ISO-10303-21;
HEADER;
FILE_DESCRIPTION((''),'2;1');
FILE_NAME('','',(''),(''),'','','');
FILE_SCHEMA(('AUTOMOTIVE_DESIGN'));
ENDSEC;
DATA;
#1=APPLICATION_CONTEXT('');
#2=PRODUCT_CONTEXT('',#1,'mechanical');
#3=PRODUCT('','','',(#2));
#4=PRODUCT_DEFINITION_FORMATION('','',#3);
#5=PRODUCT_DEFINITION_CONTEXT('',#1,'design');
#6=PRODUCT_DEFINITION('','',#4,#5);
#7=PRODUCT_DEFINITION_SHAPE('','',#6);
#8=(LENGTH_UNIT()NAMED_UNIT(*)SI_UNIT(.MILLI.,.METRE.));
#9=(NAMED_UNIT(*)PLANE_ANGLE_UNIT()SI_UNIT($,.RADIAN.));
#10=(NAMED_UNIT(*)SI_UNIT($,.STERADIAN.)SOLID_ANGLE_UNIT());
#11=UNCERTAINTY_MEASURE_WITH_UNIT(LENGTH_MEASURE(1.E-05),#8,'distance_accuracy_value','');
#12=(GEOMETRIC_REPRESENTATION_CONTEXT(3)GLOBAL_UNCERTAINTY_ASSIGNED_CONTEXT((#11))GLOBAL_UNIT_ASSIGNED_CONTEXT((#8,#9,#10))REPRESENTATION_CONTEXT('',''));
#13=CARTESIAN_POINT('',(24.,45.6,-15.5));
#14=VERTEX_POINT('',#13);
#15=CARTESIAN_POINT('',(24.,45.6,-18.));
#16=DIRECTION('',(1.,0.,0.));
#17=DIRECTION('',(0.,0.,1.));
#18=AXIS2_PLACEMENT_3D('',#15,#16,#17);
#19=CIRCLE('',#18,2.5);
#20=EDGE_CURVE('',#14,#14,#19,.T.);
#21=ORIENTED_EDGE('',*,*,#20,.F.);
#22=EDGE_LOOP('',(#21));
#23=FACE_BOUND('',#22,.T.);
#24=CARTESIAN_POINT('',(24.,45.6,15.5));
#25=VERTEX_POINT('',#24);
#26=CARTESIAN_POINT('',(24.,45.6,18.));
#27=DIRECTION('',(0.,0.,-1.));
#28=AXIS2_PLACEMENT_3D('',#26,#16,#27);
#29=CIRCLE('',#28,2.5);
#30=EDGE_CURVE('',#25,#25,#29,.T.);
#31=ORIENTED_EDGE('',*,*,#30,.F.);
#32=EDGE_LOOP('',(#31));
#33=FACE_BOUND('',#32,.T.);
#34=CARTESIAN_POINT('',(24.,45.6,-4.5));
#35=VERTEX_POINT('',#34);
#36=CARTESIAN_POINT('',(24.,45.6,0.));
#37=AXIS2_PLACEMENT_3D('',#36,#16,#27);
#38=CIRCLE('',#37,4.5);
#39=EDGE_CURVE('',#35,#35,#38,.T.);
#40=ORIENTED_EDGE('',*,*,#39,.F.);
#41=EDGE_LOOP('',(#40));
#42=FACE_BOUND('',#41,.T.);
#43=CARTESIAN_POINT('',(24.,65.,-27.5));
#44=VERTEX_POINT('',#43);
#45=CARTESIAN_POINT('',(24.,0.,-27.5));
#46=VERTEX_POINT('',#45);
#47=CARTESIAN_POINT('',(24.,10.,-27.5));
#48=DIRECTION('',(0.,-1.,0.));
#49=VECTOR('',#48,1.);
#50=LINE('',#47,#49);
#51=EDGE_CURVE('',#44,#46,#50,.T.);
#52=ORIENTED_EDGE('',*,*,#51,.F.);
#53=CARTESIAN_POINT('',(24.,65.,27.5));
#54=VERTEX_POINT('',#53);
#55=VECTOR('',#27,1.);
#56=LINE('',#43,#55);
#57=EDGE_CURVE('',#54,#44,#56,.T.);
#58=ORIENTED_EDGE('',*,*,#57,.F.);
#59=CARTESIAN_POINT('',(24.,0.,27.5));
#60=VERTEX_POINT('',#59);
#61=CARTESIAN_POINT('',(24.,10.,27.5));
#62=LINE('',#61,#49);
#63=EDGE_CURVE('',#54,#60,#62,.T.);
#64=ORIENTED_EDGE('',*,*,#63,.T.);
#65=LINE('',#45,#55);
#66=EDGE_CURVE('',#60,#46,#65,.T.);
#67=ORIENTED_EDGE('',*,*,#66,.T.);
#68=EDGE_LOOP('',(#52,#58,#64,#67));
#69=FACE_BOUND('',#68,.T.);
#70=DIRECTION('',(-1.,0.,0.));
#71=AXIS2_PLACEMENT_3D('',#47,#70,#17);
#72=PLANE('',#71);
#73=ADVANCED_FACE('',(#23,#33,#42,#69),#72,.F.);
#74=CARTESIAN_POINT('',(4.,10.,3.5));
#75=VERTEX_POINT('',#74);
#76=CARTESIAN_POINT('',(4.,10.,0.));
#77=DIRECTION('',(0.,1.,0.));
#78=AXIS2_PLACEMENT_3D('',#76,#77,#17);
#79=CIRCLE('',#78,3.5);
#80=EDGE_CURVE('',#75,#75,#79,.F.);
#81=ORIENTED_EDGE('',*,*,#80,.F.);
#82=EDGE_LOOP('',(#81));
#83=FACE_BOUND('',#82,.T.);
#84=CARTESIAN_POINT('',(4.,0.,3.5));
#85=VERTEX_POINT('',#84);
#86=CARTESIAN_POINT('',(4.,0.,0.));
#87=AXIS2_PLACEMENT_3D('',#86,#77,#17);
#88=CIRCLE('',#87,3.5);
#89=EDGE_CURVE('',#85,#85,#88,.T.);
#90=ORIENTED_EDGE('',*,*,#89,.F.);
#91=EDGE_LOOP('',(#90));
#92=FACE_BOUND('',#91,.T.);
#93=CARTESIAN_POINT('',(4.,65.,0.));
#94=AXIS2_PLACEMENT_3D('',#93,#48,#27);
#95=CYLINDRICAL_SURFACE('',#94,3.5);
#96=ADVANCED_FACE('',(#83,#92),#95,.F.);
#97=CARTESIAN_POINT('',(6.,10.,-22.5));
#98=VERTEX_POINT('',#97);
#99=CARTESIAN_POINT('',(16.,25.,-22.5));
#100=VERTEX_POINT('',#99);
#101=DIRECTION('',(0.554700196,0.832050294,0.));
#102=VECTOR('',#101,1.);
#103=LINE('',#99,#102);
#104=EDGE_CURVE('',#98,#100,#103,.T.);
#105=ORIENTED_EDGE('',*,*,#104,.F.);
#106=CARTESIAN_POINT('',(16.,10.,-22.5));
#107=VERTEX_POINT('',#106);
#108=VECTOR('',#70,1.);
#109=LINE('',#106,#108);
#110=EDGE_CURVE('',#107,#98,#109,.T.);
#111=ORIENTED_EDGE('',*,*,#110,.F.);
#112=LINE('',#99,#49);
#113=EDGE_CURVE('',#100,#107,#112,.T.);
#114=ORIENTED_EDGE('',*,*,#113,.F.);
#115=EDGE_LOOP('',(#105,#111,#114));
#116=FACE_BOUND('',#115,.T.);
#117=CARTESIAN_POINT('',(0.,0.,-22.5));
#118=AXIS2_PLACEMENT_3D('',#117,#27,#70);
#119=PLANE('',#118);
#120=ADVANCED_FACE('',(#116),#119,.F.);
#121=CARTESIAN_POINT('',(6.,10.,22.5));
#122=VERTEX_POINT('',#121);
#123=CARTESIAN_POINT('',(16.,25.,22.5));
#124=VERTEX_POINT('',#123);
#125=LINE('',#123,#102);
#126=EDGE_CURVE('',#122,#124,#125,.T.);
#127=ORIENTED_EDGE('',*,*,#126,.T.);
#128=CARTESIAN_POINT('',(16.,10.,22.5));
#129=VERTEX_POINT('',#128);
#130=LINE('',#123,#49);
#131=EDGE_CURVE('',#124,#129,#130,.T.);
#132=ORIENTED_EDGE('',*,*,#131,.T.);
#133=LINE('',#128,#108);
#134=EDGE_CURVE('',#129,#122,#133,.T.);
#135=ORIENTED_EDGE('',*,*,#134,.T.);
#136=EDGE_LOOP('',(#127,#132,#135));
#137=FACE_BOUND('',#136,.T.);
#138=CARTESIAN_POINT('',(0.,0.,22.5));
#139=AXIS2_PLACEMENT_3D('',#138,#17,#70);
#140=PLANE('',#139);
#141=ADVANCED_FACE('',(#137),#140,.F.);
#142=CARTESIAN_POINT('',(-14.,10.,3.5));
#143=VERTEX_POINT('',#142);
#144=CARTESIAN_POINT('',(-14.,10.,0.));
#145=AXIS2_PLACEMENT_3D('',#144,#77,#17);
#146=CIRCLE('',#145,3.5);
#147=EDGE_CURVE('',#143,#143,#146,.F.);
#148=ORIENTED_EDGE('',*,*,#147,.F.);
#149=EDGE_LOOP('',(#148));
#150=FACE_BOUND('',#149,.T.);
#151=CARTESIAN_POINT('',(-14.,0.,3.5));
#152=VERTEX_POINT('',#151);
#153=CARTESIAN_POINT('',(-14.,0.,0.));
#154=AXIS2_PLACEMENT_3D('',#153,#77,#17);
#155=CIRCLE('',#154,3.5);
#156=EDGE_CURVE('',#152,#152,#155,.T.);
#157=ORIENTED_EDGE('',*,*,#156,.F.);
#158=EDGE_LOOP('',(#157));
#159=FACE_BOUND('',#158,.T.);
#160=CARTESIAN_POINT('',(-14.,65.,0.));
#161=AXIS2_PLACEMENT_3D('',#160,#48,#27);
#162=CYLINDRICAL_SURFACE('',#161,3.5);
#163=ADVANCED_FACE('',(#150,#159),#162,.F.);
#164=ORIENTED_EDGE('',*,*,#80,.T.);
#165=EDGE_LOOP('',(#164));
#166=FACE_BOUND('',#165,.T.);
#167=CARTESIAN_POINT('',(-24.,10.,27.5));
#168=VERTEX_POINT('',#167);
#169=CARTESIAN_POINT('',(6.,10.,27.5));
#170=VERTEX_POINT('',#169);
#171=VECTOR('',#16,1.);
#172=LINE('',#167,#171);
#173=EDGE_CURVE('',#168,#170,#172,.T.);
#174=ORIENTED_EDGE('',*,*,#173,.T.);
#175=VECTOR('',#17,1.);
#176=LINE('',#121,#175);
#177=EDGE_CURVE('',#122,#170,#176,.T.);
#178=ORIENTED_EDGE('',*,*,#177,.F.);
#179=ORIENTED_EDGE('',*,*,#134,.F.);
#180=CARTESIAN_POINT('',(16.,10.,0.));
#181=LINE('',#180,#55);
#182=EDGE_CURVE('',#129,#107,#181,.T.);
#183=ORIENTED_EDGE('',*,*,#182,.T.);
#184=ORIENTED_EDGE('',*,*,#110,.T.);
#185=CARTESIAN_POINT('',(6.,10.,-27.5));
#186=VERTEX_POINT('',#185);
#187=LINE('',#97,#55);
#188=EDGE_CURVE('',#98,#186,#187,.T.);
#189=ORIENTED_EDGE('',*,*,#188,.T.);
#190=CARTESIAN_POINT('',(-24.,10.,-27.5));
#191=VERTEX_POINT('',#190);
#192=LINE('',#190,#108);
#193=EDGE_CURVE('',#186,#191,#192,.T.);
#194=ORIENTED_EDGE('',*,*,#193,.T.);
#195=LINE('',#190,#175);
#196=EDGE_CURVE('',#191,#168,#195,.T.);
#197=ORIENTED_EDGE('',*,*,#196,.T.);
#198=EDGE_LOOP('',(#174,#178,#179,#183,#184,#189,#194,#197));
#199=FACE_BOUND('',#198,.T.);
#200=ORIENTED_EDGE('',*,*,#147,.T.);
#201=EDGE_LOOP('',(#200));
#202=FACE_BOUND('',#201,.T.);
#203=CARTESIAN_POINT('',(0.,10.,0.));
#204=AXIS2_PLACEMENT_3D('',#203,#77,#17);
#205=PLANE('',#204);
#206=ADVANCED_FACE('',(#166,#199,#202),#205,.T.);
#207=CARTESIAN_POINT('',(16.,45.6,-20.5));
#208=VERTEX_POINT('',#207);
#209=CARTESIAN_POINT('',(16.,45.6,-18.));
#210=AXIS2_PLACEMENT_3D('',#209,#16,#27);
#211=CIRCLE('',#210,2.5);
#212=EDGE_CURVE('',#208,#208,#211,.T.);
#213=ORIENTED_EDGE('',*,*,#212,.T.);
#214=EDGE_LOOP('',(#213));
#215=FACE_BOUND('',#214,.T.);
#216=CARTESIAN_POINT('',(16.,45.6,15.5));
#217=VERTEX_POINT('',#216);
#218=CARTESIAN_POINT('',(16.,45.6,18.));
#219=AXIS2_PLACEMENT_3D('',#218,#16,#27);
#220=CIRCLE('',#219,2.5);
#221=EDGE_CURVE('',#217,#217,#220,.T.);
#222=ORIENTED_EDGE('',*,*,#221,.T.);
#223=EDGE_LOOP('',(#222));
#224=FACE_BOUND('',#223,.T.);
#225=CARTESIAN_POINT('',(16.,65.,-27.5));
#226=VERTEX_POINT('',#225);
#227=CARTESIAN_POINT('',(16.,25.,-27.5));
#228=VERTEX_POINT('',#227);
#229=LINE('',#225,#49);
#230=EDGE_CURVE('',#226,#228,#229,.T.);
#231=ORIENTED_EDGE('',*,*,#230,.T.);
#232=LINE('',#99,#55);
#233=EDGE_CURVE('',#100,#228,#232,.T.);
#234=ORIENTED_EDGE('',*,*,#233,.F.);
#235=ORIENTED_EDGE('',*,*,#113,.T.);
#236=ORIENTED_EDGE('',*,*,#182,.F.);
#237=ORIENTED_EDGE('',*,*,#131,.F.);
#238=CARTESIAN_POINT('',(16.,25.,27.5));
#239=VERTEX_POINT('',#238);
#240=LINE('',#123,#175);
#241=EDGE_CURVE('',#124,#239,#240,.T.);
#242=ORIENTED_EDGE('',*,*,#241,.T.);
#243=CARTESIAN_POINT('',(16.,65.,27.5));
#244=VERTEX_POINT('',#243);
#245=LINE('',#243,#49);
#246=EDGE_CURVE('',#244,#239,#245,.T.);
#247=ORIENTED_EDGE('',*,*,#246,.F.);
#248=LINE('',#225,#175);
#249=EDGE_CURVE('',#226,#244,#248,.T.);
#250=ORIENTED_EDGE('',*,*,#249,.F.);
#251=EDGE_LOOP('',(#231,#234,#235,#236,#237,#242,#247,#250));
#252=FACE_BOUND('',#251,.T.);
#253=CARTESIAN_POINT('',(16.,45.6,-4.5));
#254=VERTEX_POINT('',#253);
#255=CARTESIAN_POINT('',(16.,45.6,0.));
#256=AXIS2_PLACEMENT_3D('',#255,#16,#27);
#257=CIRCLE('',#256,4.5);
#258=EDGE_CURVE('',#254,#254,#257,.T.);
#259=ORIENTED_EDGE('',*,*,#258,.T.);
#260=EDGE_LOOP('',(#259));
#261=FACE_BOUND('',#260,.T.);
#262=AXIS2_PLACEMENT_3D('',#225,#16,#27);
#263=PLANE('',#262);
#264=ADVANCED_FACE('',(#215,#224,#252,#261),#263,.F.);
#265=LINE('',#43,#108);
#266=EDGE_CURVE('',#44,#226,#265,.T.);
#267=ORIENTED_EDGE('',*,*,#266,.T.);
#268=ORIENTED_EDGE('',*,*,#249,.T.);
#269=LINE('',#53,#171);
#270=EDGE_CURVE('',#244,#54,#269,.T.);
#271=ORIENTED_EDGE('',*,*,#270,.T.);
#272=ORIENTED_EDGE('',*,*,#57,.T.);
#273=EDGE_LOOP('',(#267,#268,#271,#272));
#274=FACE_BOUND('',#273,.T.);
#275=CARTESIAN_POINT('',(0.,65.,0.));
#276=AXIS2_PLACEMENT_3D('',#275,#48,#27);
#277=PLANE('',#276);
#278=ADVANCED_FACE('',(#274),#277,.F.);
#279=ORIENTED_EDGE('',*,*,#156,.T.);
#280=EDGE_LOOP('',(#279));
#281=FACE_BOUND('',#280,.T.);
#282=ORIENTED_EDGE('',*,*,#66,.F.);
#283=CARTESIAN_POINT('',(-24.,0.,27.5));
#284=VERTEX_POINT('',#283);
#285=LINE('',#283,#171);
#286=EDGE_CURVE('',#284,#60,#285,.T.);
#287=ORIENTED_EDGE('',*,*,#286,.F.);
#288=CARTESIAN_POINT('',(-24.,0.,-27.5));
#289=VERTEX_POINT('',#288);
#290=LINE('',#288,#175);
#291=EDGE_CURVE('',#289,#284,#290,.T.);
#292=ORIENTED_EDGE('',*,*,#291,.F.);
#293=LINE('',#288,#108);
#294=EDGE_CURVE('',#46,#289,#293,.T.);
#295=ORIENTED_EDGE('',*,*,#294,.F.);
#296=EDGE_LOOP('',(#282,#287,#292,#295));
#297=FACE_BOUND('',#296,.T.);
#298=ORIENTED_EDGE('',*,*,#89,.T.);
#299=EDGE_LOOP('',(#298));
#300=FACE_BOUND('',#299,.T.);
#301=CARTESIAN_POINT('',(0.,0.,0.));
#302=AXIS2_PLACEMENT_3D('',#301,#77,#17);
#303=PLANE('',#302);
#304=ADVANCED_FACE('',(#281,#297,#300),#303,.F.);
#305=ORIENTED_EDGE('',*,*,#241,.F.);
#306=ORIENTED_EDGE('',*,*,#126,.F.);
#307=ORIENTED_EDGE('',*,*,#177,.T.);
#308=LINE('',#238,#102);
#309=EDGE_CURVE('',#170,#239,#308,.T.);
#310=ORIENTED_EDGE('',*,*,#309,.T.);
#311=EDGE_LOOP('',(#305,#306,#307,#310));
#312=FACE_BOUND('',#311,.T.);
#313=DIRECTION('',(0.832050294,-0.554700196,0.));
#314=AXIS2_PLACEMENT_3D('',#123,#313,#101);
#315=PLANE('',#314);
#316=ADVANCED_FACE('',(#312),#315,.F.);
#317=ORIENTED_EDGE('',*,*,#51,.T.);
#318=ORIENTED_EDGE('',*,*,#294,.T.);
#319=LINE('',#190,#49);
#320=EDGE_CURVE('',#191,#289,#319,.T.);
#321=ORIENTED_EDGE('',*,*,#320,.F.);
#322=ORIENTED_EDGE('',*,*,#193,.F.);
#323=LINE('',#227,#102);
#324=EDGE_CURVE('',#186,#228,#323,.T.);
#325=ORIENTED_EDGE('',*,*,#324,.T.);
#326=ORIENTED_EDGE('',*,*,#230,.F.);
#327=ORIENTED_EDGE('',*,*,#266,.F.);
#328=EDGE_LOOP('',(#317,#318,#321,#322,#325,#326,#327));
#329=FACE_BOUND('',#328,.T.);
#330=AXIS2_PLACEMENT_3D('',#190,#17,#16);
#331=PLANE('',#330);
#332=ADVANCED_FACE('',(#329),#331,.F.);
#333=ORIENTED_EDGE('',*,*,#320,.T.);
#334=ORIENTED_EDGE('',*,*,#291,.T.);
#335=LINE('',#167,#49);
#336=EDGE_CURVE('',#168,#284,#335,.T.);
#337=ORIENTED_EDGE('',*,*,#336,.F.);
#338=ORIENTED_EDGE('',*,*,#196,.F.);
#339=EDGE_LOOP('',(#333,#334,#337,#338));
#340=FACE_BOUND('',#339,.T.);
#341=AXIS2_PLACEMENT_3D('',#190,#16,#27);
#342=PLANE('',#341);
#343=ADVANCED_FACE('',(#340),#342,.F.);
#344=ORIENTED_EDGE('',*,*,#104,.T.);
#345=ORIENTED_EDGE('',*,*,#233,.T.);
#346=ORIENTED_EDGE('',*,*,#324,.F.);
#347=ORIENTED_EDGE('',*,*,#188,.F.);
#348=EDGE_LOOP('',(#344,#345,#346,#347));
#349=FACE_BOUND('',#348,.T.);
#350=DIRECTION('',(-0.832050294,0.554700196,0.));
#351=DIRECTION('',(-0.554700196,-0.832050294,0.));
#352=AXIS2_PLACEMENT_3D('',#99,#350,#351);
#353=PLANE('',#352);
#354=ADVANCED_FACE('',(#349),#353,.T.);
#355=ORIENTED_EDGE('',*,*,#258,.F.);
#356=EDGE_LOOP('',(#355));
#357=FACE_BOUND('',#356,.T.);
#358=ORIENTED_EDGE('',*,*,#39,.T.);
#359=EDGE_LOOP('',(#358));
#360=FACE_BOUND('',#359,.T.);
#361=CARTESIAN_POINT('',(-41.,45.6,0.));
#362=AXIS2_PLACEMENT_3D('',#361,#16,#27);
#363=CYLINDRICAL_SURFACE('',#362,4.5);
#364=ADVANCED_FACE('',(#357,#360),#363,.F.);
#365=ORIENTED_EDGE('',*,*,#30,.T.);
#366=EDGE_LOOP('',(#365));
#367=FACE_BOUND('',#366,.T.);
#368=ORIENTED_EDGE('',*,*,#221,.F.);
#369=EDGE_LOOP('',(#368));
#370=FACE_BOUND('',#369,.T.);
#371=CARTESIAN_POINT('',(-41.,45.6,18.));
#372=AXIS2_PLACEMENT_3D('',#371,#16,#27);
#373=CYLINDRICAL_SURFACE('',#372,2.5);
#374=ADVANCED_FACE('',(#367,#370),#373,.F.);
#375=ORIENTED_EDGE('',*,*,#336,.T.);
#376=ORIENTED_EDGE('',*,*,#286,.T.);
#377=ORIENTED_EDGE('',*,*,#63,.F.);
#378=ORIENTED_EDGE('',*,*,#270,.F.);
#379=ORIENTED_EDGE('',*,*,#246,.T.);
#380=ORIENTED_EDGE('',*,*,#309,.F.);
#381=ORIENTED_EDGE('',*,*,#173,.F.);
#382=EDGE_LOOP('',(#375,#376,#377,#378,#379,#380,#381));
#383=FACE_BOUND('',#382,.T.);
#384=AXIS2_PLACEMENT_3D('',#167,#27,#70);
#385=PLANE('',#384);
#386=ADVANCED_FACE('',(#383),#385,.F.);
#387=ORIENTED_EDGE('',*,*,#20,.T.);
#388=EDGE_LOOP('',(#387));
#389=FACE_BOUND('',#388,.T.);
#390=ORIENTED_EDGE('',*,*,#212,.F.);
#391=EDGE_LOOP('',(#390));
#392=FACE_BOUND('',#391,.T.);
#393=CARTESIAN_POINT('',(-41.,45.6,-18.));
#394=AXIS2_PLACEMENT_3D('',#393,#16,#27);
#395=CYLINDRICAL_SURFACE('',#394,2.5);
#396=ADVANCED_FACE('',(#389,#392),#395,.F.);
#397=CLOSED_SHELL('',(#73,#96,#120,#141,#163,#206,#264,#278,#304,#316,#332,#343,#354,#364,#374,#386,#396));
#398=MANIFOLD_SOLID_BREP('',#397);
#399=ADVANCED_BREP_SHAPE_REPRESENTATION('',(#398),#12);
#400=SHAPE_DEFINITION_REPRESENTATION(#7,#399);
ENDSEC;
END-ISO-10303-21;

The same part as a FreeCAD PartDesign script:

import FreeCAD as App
import Part
import Sketcher


def add_polygon(sketch, points):
    """Adds a closed chain of lines whose ends are joined by coincident constraints."""
    first, n = sketch.GeometryCount, len(points)
    for a, b in zip(points, points[1:] + points[:1]):
        sketch.addGeometry(Part.LineSegment(App.Vector(*a, 0), App.Vector(*b, 0)), False)
    for i in range(n):
        sketch.addConstraint(Sketcher.Constraint("Coincident", first + i, 2, first + (i + 1) % n, 1))

doc = App.newDocument("Part")
body = doc.addObject("PartDesign::Body", "Body")

sketch1 = body.newObject("Sketcher::SketchObject", "Sketch")
sketch1.AttachmentSupport = (doc.getObject("XZ_Plane"), [""])
sketch1.MapMode = "FlatFace"
add_polygon(sketch1, [(-24, -28), (-24, 28), (24, 28), (24, -28)])
sketch1.addConstraint([
    Sketcher.Constraint("Vertical", 0),
    Sketcher.Constraint("Horizontal", 1),
    Sketcher.Constraint("Vertical", 2),
    Sketcher.Constraint("Horizontal", 3),
    Sketcher.Constraint("Symmetric", 0, 2, 2, 2, -1, 1),
    Sketcher.Constraint("DistanceX", 1, 1, 1, 2, 48.0),
    Sketcher.Constraint("DistanceY", 0, 1, 0, 2, 55.0),
])
pad1 = body.newObject("PartDesign::Pad", "Pad")
pad1.Profile = sketch1
pad1.Length = 10
pad1.Reversed = True

sketch2 = body.newObject("Sketcher::SketchObject", "Sketch001")
sketch2.AttachmentSupport = (doc.getObject("XZ_Plane"), [""])
sketch2.MapMode = "FlatFace"
add_polygon(sketch2, [(16, -28), (16, 28), (24, 28), (24, -28)])
sketch2.addConstraint([
    Sketcher.Constraint("Vertical", 0),
    Sketcher.Constraint("Horizontal", 1),
    Sketcher.Constraint("Vertical", 2),
    Sketcher.Constraint("Horizontal", 3),
    Sketcher.Constraint("DistanceX", 1, 1, 1, 2, 8.0),
    Sketcher.Constraint("DistanceY", 0, 1, 0, 2, 55.0),
    Sketcher.Constraint("DistanceX", -1, 1, 0, 2, 16.0),
    Sketcher.Constraint("DistanceY", -1, 1, 0, 2, 27.5),
])
pad2 = body.newObject("PartDesign::Pad", "Pad001")
pad2.Profile = sketch2
pad2.Length = 65
pad2.Reversed = True

sketch3 = body.newObject("Sketcher::SketchObject", "Sketch002")
sketch3.AttachmentSupport = (doc.getObject("YZ_Plane"), [""])
sketch3.MapMode = "FlatFace"
sketch3.AttachmentOffset = App.Placement(App.Vector(0, 0, 24), App.Rotation())
sketch3.addGeometry(Part.Circle(App.Vector(45.6, 0, 0), App.Vector(0, 0, 1), 4.5), False)
sketch3.addConstraint([
    Sketcher.Constraint("PointOnObject", 0, 3, -1),
    Sketcher.Constraint("Diameter", 0, 9.0),
    Sketcher.Constraint("DistanceX", -1, 1, 0, 3, 45.6),
])
pocket1 = body.newObject("PartDesign::Pocket", "Pocket")
pocket1.Profile = sketch3
pocket1.Length = 65

sketch4 = body.newObject("Sketcher::SketchObject", "Sketch003")
sketch4.AttachmentSupport = (doc.getObject("YZ_Plane"), [""])
sketch4.MapMode = "FlatFace"
sketch4.AttachmentOffset = App.Placement(App.Vector(0, 0, 24), App.Rotation())
sketch4.addGeometry([
    Part.Circle(App.Vector(45.6, 18, 0), App.Vector(0, 0, 1), 2.5),
    Part.Circle(App.Vector(45.6, -18, 0), App.Vector(0, 0, 1), 2.5),
], False)
sketch4.addConstraint([
    Sketcher.Constraint("Equal", 0, 1),
    Sketcher.Constraint("Symmetric", 0, 3, 1, 3, -1),
    Sketcher.Constraint("Diameter", 0, 5.0),
    Sketcher.Constraint("DistanceY", -1, 1, 0, 3, 18.0),
    Sketcher.Constraint("DistanceX", -1, 1, 0, 3, 45.6),
])
pocket2 = body.newObject("PartDesign::Pocket", "Pocket001")
pocket2.Profile = sketch4
pocket2.Length = 65

sketch5 = body.newObject("Sketcher::SketchObject", "Sketch004")
sketch5.AttachmentSupport = (doc.getObject("XZ_Plane"), [""])
sketch5.MapMode = "FlatFace"
sketch5.addGeometry([
    Part.Circle(App.Vector(-14, 0, 0), App.Vector(0, 0, 1), 3.5),
    Part.Circle(App.Vector(4, 0, 0), App.Vector(0, 0, 1), 3.5),
], False)
sketch5.addConstraint([
    Sketcher.Constraint("Equal", 0, 1),
    Sketcher.Constraint("PointOnObject", 0, 3, -1),
    Sketcher.Constraint("PointOnObject", 1, 3, -1),
    Sketcher.Constraint("Diameter", 0, 7.0),
    Sketcher.Constraint("DistanceX", 0, 3, -1, 1, 14.0),
    Sketcher.Constraint("DistanceX", -1, 1, 1, 3, 4.0),
])
pocket3 = body.newObject("PartDesign::Pocket", "Pocket002")
pocket3.Profile = sketch5
pocket3.Length = 65

sketch6 = body.newObject("Sketcher::SketchObject", "Sketch005")
sketch6.AttachmentSupport = (doc.getObject("XY_Plane"), [""])
sketch6.MapMode = "FlatFace"
sketch6.AttachmentOffset = App.Placement(App.Vector(0, 0, -27.5), App.Rotation())
add_polygon(sketch6, [(16, 25), (16, 10), (6, 10)])
sketch6.addConstraint([
    Sketcher.Constraint("Vertical", 0),
    Sketcher.Constraint("Horizontal", 1),
    Sketcher.Constraint("DistanceX", 1, 2, 1, 1, 10.0),
    Sketcher.Constraint("DistanceY", 0, 2, 0, 1, 15.0),
    Sketcher.Constraint("DistanceX", -1, 1, 0, 2, 16.0),
    Sketcher.Constraint("DistanceY", -1, 1, 0, 2, 10.0),
])
pad3 = body.newObject("PartDesign::Pad", "Pad002")
pad3.Profile = sketch6
pad3.Length = 5
doc.recompute()

mirrored = body.newObject("PartDesign::Mirrored", "Mirrored")
mirrored.Originals = [pad3]
mirrored.MirrorPlane = (doc.getObject("XY_Plane"), [""])
body.Tip = mirrored

doc.recompute()
